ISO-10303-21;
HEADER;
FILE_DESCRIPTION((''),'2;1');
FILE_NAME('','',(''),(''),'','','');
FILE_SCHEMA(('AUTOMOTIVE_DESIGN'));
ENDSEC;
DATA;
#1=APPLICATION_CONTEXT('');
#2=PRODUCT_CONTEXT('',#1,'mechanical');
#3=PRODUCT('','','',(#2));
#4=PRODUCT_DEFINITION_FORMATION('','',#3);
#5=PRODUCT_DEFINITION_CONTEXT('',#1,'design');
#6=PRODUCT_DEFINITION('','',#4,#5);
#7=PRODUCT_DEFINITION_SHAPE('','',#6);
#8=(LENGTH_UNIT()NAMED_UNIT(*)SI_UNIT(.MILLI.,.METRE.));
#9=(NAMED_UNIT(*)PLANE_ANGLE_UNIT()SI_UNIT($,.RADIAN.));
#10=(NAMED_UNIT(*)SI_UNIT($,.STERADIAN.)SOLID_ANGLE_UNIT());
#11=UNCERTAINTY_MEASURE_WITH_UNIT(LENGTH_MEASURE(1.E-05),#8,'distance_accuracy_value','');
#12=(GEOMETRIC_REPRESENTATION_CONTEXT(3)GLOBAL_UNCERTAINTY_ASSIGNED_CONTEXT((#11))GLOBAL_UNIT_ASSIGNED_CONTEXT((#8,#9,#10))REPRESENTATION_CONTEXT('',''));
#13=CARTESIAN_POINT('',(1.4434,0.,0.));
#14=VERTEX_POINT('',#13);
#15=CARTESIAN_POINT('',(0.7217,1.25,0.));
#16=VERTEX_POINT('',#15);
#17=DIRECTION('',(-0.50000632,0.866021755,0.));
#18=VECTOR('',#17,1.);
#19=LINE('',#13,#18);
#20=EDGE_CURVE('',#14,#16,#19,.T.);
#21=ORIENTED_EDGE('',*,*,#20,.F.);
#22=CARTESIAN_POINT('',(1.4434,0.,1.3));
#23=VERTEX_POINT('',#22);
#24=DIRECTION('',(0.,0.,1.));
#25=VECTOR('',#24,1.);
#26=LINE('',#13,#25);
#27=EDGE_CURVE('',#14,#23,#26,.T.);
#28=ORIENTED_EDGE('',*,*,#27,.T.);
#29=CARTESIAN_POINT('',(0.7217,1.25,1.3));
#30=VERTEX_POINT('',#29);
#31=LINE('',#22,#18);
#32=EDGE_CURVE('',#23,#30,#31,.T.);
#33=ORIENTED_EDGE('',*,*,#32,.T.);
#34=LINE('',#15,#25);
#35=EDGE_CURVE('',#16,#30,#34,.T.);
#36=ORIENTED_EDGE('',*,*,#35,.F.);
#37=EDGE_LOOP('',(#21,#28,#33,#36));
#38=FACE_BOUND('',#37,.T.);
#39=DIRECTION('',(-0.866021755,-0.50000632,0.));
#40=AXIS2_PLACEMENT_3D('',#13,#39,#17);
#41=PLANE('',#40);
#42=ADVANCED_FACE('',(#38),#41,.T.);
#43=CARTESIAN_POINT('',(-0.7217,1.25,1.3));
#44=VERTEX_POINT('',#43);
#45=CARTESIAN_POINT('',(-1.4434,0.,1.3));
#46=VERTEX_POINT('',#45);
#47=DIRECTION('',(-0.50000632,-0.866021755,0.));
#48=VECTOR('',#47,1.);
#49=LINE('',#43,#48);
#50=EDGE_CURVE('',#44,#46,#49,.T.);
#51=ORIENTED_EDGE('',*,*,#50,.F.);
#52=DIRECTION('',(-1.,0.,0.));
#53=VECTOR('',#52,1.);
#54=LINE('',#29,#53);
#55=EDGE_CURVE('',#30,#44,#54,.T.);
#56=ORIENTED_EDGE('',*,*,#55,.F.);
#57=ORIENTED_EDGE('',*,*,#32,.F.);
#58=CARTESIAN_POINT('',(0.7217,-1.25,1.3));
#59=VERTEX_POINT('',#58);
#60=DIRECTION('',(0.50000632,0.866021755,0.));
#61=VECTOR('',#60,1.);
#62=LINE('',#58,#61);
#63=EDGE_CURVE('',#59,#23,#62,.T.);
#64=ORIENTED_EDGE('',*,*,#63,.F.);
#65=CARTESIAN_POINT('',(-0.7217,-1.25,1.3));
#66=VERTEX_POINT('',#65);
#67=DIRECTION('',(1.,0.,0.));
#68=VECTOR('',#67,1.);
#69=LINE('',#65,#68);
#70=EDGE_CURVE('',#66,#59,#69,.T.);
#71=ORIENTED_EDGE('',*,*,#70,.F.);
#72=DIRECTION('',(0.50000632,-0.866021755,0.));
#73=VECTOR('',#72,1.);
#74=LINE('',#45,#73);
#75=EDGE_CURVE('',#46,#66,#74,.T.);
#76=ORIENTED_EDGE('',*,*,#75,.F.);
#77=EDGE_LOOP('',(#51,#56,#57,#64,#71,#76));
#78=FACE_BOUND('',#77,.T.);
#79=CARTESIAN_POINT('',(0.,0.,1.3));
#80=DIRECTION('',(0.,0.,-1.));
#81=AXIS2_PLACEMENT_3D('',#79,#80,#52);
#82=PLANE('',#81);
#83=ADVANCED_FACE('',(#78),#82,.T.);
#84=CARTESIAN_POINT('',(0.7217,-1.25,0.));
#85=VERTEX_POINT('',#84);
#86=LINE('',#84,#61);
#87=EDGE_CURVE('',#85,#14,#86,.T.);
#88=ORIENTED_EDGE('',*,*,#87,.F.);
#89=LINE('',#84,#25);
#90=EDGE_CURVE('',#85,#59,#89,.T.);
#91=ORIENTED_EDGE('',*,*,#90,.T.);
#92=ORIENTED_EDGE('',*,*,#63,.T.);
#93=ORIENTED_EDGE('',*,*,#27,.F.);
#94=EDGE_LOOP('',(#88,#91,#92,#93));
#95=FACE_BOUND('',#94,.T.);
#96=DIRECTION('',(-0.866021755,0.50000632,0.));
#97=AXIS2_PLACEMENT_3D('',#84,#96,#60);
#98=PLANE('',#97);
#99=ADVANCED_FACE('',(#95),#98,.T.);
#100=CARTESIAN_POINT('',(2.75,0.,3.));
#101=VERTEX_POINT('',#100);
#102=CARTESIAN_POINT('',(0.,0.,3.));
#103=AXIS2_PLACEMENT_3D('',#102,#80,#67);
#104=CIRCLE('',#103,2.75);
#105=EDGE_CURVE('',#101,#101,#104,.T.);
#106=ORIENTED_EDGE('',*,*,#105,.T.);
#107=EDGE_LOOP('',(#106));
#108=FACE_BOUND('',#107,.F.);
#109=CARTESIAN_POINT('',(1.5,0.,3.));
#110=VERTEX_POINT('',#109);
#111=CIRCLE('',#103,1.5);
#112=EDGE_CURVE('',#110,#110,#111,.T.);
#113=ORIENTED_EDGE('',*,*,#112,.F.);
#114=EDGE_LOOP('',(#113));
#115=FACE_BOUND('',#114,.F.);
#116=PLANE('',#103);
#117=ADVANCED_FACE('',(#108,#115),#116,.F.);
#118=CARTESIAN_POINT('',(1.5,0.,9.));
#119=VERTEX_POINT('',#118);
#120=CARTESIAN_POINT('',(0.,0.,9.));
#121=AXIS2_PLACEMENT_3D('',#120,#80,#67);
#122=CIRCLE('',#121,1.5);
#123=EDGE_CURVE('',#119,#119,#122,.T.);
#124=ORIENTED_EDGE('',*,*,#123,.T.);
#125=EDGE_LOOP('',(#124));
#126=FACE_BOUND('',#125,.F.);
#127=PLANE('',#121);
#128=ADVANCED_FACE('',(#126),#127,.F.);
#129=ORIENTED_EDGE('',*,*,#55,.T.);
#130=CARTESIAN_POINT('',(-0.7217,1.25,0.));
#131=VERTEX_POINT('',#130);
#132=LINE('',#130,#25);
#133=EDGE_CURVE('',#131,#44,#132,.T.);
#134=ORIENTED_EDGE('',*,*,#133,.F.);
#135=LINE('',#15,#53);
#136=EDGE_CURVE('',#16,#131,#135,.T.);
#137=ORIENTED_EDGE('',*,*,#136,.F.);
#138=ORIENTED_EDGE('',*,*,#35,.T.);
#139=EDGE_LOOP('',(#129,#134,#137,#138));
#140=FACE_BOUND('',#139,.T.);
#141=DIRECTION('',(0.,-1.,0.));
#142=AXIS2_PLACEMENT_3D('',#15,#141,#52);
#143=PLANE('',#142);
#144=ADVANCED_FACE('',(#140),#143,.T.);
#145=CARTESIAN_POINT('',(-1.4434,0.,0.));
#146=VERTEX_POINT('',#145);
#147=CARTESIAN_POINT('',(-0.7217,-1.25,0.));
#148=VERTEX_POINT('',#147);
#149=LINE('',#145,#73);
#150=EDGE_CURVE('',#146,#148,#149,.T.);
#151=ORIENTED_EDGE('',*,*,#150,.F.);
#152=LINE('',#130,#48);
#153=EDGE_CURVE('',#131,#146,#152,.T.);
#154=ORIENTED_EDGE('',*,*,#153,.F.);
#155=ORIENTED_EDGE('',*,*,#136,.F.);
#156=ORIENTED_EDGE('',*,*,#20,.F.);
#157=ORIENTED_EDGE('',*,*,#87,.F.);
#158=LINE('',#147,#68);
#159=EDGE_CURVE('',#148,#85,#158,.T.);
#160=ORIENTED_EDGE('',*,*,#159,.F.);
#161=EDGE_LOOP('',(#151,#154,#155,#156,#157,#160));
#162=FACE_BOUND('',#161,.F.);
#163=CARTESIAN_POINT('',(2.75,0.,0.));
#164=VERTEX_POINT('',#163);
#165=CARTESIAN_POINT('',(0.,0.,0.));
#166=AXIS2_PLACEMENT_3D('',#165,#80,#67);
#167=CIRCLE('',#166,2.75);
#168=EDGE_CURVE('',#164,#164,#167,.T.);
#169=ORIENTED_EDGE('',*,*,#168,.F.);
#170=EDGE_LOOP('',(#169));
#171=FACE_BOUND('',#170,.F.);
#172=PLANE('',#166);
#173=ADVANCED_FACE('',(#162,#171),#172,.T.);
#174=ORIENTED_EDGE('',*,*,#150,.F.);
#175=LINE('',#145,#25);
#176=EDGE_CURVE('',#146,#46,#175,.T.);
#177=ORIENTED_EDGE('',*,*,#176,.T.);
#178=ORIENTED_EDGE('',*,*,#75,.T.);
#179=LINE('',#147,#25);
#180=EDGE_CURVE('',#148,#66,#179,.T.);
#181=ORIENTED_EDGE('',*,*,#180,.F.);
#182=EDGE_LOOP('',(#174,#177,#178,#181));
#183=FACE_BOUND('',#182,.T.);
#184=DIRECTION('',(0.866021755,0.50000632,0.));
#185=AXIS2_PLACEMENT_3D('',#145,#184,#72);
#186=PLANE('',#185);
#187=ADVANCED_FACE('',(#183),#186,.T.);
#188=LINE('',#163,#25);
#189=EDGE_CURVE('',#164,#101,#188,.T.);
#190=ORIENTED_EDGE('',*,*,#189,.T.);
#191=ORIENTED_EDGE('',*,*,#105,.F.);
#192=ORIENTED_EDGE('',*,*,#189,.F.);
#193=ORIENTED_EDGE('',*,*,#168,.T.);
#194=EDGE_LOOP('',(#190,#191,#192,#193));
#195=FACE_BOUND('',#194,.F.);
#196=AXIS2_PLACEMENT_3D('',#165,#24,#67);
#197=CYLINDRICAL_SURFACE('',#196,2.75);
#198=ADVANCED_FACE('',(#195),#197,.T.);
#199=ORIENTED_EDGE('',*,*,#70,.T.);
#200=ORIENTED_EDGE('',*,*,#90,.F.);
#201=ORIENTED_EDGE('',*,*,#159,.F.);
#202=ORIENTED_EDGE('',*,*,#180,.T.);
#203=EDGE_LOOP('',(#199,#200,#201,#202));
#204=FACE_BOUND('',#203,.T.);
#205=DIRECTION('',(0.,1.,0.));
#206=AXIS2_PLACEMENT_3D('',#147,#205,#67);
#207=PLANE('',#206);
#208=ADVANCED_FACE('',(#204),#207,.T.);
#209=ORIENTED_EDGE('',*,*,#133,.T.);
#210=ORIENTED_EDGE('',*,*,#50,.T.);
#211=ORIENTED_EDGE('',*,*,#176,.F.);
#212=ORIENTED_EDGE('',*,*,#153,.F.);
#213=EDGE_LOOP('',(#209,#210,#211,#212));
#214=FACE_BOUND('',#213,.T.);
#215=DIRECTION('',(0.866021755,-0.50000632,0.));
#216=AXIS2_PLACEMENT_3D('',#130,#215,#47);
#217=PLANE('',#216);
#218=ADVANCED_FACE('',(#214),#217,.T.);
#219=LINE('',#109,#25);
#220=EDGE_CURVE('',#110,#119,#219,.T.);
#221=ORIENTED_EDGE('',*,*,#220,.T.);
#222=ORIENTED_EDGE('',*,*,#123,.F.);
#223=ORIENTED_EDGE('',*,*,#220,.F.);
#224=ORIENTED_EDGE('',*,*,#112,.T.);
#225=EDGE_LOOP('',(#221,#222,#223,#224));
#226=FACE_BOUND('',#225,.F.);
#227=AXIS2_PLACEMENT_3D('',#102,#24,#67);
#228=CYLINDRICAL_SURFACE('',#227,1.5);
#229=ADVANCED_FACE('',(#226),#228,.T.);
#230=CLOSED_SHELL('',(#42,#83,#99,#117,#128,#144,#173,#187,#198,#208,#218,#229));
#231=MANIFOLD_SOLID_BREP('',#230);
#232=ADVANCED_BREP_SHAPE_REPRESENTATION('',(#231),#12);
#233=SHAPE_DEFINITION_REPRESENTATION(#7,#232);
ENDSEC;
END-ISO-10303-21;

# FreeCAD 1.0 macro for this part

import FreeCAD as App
import Part
import Sketcher

V = App.Vector
Q = App.Units.Quantity

doc = App.newDocument("Part")
params = doc.addObject("Spreadsheet::Sheet", "Params")
for row, (alias, value) in enumerate([
    ("sketch1_height", "6 mm"),
    ("sketch1_height2", "3 mm"),
    ("sketch1_width", "1.5 mm"),
    ("sketch1_width2", "2.75 mm"),
    ("revolution_angle", "360 deg"),
    ("pocket1_length", "1.3 mm"),
], start=1):
    params.set(f"A{row}", alias)
    params.set(f"B{row}", "=" + value)
    params.setAlias(f"B{row}", alias)

body = doc.addObject("PartDesign::Body", "Body")

sketch1 = body.newObject("Sketcher::SketchObject", "Sketch")
sketch1.AttachmentSupport = (doc.getObject("XZ_Plane"), [""])
sketch1.MapMode = "FlatFace"
sketch1.addGeometry([
    Part.LineSegment(V(2.8, 0, 0), V(0, 0, 0)),
    Part.LineSegment(V(0, 0, 0), V(0, 9, 0)),
    Part.LineSegment(V(0, 9, 0), V(1.5, 9, 0)),
    Part.LineSegment(V(1.5, 9, 0), V(1.5, 3, 0)),
    Part.LineSegment(V(1.5, 3, 0), V(2.8, 3, 0)),
    Part.LineSegment(V(2.8, 3, 0), V(2.8, 0, 0)),
], False)
sketch1.addConstraint([
    Sketcher.Constraint("Coincident", 0, 2, 1, 1),
    Sketcher.Constraint("Coincident", 1, 2, 2, 1),
    Sketcher.Constraint("Coincident", 2, 2, 3, 1),
    Sketcher.Constraint("Coincident", 3, 2, 4, 1),
    Sketcher.Constraint("Coincident", 4, 2, 5, 1),
    Sketcher.Constraint("Coincident", 5, 2, 0, 1),
    Sketcher.Constraint("Horizontal", 0),
    Sketcher.Constraint("Vertical", 1),
    Sketcher.Constraint("Horizontal", 2),
    Sketcher.Constraint("Vertical", 3),
    Sketcher.Constraint("Horizontal", 4),
    Sketcher.Constraint("Vertical", 5),
    Sketcher.Constraint("Coincident", 0, 2, -1, 1),
    Sketcher.Constraint("DistanceY", 3, 2, 3, 1, 6.0),
    Sketcher.Constraint("DistanceY", 5, 2, 5, 1, 3.0),
    Sketcher.Constraint("DistanceX", 2, 1, 2, 2, 1.5),
    Sketcher.Constraint("DistanceX", 0, 2, 0, 1, 2.75),
])
sketch1.setExpression("Constraints[13]", "Params.sketch1_height")
sketch1.setExpression("Constraints[14]", "Params.sketch1_height2")
sketch1.setExpression("Constraints[15]", "Params.sketch1_width")
sketch1.setExpression("Constraints[16]", "Params.sketch1_width2")
revolution = body.newObject("PartDesign::Revolution", "Revolution")
revolution.Profile = sketch1
revolution.ReferenceAxis = (sketch1, ["V_Axis"])
revolution.setExpression("Angle", "Params.revolution_angle")

sketch2 = body.newObject("Sketcher::SketchObject", "Sketch001")
sketch2.AttachmentSupport = (doc.getObject("XY_Plane"), [""])
sketch2.MapMode = "FlatFace"
sketch2.addGeometry([
    Part.LineSegment(V(-1.4, 0, 0), V(-0.7, 1.2, 0)),
    Part.LineSegment(V(-0.7, 1.2, 0), V(0.7, 1.2, 0)),
    Part.LineSegment(V(0.7, 1.2, 0), V(1.4, 0, 0)),
    Part.LineSegment(V(1.4, 0, 0), V(0.7, -1.2, 0)),
    Part.LineSegment(V(0.7, -1.2, 0), V(-0.7, -1.2, 0)),
    Part.LineSegment(V(-0.7, -1.2, 0), V(-1.4, 0, 0)),
], False)
sketch2.addConstraint([
    Sketcher.Constraint("Coincident", 0, 2, 1, 1),
    Sketcher.Constraint("Coincident", 1, 2, 2, 1),
    Sketcher.Constraint("Coincident", 2, 2, 3, 1),
    Sketcher.Constraint("Coincident", 3, 2, 4, 1),
    Sketcher.Constraint("Coincident", 4, 2, 5, 1),
    Sketcher.Constraint("Coincident", 5, 2, 0, 1),
    Sketcher.Constraint("Horizontal", 1),
    Sketcher.Constraint("Horizontal", 4),
    Sketcher.Constraint("Symmetric", 0, 2, 3, 2, -1, 1),
    Sketcher.Constraint("Symmetric", 2, 2, 5, 2, -1, 1),
    Sketcher.Constraint("PointOnObject", 2, 2, -1),
    Sketcher.Constraint("Parallel", 2, 5),
    Sketcher.Constraint("Vertical", 1, 2, 3, 2),
    Sketcher.Constraint("DistanceY", 3, 2, 1, 2, 2.5),
    Sketcher.Constraint("Angle", 0, Q("59.9996 deg")),
    Sketcher.Constraint("DistanceX", 1, 1, 1, 2, 1.4434),
])
pocket1 = body.newObject("PartDesign::Pocket", "Pocket")
pocket1.Profile = sketch2
pocket1.setExpression("Length", "Params.pocket1_length")
pocket1.Reversed = True

doc.recompute()
